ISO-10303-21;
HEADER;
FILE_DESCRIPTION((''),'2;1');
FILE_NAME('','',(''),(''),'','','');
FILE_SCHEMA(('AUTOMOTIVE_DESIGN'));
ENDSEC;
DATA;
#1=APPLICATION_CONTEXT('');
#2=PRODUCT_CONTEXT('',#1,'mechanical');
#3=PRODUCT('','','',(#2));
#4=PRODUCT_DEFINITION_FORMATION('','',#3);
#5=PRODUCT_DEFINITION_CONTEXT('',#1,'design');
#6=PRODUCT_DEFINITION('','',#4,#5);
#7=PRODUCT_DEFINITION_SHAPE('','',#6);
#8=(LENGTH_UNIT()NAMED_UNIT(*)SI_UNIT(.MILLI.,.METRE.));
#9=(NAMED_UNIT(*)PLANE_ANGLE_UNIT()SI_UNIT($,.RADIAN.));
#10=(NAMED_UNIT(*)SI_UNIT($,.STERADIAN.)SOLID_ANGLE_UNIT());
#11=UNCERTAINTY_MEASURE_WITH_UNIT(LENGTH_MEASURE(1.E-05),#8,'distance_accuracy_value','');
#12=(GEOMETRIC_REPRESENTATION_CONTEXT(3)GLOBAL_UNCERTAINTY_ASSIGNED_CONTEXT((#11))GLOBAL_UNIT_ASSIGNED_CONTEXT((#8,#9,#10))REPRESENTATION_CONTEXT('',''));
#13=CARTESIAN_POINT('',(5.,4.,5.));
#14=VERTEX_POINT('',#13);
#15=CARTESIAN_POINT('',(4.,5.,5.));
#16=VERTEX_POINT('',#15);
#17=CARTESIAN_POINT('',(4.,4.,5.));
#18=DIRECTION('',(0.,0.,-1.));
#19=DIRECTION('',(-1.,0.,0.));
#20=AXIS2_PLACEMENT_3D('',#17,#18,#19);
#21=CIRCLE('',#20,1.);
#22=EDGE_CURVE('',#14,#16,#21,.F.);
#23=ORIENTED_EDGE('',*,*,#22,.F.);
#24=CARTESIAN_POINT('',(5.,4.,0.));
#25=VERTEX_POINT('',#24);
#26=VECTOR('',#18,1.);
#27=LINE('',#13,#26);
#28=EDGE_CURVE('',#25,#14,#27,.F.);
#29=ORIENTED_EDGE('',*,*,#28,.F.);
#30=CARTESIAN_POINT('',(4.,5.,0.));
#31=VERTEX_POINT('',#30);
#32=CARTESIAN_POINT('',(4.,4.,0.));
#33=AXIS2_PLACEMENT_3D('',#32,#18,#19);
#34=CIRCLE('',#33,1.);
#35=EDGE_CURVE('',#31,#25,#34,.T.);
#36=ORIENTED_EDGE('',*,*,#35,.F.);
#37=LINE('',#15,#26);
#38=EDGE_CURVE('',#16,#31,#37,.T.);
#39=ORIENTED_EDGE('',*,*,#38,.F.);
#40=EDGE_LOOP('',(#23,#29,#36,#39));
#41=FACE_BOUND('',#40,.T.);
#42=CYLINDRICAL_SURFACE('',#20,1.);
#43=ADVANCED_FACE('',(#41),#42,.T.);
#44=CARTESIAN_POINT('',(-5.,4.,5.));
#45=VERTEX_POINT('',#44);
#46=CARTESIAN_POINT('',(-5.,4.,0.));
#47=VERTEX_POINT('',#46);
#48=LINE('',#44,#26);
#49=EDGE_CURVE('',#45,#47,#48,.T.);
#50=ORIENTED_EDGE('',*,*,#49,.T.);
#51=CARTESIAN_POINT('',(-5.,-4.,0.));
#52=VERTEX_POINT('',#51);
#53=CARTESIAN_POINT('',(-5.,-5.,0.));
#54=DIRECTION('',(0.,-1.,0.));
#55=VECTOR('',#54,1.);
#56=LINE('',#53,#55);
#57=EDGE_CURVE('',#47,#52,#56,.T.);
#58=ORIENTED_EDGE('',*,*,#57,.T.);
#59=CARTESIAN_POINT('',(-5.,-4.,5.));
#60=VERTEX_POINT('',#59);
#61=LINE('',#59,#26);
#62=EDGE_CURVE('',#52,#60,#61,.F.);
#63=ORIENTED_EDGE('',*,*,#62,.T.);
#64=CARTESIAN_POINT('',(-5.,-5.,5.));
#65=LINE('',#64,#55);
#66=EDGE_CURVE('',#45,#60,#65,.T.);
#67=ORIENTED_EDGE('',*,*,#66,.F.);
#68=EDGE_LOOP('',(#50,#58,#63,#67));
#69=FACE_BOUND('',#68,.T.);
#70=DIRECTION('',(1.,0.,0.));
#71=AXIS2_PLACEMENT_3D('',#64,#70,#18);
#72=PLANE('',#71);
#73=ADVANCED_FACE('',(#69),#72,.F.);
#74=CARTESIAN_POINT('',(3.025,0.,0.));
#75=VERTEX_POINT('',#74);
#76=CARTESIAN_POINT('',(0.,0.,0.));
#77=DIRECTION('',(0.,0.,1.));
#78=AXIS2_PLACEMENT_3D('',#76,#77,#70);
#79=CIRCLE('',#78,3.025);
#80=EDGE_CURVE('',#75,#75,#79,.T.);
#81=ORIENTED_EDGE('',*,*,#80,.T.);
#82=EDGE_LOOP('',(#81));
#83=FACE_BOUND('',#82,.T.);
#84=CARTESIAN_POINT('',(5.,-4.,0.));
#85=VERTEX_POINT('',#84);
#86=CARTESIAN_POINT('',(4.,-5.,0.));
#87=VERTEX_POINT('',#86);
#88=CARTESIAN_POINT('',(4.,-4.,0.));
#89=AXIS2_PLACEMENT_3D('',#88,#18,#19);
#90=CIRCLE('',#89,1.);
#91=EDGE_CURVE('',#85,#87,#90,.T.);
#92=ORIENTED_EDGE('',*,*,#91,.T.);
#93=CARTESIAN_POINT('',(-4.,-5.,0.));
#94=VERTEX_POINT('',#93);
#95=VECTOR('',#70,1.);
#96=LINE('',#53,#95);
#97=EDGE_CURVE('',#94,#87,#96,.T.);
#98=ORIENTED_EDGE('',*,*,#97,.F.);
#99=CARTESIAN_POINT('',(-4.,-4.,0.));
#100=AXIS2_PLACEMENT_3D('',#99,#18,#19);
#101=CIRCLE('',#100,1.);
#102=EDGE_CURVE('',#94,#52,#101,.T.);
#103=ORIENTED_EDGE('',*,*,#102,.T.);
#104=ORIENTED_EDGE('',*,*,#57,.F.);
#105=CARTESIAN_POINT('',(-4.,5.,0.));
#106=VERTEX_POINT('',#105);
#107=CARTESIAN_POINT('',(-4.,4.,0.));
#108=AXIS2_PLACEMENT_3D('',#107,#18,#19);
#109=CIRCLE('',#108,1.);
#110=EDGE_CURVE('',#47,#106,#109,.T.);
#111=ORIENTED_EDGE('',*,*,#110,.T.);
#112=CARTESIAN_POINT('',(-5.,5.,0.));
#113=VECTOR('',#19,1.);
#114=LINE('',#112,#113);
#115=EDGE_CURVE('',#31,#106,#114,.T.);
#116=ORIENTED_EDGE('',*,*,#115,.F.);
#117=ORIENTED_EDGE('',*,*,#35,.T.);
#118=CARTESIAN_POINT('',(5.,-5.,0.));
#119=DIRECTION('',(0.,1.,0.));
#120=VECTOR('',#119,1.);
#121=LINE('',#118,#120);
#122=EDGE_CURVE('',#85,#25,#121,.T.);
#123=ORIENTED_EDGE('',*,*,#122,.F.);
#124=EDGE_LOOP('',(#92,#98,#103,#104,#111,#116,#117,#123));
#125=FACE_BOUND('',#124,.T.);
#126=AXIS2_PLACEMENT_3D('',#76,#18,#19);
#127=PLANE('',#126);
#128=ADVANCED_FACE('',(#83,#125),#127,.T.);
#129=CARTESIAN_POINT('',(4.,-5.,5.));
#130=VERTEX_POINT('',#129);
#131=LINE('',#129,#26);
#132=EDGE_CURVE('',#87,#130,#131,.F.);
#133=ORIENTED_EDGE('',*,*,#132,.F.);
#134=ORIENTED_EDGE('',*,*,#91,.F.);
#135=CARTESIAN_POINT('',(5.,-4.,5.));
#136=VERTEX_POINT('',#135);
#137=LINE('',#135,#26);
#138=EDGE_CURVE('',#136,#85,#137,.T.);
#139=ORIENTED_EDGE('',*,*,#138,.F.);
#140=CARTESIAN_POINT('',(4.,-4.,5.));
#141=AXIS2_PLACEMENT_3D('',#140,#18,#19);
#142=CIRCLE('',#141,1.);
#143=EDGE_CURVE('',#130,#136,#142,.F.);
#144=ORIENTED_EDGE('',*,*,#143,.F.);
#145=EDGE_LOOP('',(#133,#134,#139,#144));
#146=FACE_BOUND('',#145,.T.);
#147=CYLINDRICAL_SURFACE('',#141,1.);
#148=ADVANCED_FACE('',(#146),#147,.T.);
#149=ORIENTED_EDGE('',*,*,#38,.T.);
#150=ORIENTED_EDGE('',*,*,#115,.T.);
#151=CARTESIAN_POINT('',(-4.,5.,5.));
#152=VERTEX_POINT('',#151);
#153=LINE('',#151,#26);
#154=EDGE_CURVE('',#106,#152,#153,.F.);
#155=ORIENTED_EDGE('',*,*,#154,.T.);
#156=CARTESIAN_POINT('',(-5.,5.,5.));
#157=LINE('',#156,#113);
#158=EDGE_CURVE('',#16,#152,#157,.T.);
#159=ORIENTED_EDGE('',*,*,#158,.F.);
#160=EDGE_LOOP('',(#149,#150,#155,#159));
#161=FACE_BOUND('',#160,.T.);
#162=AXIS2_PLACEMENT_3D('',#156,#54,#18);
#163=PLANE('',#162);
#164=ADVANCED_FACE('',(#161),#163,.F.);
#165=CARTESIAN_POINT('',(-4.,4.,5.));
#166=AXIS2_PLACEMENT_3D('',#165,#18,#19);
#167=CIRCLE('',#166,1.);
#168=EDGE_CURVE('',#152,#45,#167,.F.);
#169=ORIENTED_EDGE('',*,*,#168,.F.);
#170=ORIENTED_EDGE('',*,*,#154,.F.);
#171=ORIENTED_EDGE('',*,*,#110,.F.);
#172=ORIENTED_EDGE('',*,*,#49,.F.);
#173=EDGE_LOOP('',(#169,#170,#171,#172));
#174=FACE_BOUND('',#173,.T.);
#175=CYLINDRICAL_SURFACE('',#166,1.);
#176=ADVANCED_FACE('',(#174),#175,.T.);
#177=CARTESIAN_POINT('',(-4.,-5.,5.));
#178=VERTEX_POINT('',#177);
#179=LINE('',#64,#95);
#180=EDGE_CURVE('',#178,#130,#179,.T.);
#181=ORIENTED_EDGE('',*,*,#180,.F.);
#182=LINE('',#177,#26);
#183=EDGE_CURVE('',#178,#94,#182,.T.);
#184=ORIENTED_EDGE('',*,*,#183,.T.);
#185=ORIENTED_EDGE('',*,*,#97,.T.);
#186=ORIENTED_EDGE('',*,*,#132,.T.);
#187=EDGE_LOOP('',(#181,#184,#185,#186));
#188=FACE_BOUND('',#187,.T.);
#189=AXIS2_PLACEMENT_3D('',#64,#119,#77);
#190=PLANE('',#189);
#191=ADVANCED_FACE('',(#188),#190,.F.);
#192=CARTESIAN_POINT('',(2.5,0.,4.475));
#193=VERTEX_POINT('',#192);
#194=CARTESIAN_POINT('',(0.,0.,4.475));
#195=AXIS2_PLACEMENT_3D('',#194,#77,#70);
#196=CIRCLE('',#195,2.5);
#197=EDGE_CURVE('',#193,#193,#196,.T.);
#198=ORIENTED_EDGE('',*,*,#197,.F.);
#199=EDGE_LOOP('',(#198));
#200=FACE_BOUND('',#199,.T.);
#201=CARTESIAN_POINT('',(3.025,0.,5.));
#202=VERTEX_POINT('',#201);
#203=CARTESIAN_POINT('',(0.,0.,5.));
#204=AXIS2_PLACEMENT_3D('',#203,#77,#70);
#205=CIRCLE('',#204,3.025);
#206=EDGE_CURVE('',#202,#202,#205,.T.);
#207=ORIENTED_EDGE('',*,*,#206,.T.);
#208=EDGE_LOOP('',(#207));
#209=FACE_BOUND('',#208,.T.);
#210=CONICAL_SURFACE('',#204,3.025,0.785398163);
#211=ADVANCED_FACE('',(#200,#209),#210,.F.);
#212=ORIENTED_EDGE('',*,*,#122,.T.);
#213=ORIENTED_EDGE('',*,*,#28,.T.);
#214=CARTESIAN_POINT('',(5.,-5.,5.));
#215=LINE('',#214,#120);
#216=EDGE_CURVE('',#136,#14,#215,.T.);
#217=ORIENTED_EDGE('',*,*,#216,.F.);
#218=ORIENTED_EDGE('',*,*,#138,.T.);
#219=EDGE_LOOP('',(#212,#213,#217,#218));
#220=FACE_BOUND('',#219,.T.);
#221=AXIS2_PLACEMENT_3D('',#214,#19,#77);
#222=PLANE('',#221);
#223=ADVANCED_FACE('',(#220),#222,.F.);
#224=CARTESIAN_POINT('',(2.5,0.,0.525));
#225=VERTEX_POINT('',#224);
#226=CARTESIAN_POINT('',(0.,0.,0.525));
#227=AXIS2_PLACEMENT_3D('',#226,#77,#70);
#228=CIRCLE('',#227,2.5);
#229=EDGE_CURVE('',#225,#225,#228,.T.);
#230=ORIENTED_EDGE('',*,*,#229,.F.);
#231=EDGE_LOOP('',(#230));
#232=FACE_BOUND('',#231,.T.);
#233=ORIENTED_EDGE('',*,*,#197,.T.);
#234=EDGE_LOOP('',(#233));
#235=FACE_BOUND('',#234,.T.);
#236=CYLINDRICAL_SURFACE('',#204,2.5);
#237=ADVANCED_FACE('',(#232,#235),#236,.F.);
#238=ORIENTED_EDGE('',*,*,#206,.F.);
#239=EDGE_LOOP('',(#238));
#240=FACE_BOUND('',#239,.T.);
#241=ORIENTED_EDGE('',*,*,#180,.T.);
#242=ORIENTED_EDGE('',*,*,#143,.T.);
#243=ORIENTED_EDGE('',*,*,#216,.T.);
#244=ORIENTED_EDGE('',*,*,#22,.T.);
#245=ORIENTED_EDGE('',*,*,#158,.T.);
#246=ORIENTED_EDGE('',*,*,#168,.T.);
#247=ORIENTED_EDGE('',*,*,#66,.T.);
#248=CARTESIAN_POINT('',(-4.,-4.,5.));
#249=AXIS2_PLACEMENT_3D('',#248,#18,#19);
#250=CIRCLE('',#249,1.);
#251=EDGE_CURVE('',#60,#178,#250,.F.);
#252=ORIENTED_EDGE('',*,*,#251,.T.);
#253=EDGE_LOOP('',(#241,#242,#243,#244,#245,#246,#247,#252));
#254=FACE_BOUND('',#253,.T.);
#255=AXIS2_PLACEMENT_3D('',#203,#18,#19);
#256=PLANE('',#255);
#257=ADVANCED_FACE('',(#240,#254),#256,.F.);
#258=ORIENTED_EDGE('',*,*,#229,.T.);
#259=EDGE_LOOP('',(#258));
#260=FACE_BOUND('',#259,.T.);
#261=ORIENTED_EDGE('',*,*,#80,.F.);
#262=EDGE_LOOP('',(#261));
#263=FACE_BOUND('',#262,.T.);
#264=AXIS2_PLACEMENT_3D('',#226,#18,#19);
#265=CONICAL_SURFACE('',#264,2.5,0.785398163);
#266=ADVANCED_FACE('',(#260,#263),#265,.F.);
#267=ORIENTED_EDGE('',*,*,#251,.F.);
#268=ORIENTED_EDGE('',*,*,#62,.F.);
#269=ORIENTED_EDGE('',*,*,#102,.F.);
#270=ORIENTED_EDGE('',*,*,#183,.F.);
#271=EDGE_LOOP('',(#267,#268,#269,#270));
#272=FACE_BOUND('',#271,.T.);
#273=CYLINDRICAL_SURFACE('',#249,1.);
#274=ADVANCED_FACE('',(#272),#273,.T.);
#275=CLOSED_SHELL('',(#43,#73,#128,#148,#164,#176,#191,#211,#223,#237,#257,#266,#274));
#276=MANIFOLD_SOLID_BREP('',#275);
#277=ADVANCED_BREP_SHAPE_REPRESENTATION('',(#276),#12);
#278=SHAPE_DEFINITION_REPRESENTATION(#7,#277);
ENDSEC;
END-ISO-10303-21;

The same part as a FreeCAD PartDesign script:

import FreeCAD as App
import Part
import Sketcher
from FreeCAD import Vector
Q = App.Units.Quantity


def edges_at(feature, points):
    """Names of the edges that pass closest to the given points."""
    edges = feature.Shape.Edges
    near = lambda p: min(range(len(edges)), key=lambda i: edges[i].distToShape(Part.Vertex(*p))[0])
    return sorted({f"Edge{near(p) + 1}" for p in points})


def add_polygon(sketch, points):
    """Adds a closed chain of lines whose ends are joined by coincident constraints."""
    first, n = sketch.GeometryCount, len(points)
    for a, b in zip(points, points[1:] + points[:1]):
        sketch.addGeometry(Part.LineSegment(App.Vector(*a, 0), App.Vector(*b, 0)), False)
    for i in range(n):
        sketch.addConstraint(Sketcher.Constraint("Coincident", first + i, 2, first + (i + 1) % n, 1))

doc = App.newDocument("Part")
params = doc.addObject("Spreadsheet::Sheet", "Params")
for row, (alias, value) in enumerate([
    ("sketch1_width", "10 mm"),
    ("pad1_length", "5 mm"),
    ("sketch2_height", "5 mm"),
    ("sketch2_height2", "3.95 mm"),
    ("groove_angle", "360 deg"),
    ("fillet_radius", "1 mm"),
], start=1):
    params.set(f"A{row}", alias)
    params.set(f"B{row}", "=" + value)
    params.setAlias(f"B{row}", alias)

body = doc.addObject("PartDesign::Body", "Body")

sketch1 = doc.addObject("Sketcher::SketchObject", "Sketch")
body.addObject(sketch1)
sketch1.AttachmentSupport = (doc.XY_Plane, [""])
sketch1.MapMode = "FlatFace"
add_polygon(sketch1, [(-5, 5), (-5, -5), (5, -5), (5, 5)])
sketch1.addConstraint([
    Sketcher.Constraint("Vertical", 0),
    Sketcher.Constraint("Horizontal", 1),
    Sketcher.Constraint("Vertical", 2),
    Sketcher.Constraint("Horizontal", 3),
    Sketcher.Constraint("Symmetric", 0, 2, 2, 2, -1, 1),
    Sketcher.Constraint("Equal", 3, 0),
    Sketcher.Constraint("DistanceX", 1, 1, 1, 2, Q("10 mm")),
])
sketch1.setExpression("Constraints[10]", "Params.sketch1_width")
pad1 = doc.addObject("PartDesign::Pad", "Pad")
body.addObject(pad1)
pad1.Profile = sketch1
pad1.setExpression("Length", "Params.pad1_length")

sketch2 = doc.addObject("Sketcher::SketchObject", "Sketch001")
body.addObject(sketch2)
sketch2.AttachmentSupport = (doc.YZ_Plane, [""])
sketch2.MapMode = "FlatFace"
add_polygon(sketch2, [(0, 0), (0, 5), (-3, 5), (-2.5, 4.5), (-2.5, 0.5), (-3, 0)])
sketch2.addConstraint([
    Sketcher.Constraint("Vertical", 0),
    Sketcher.Constraint("Horizontal", 1),
    Sketcher.Constraint("Vertical", 3),
    Sketcher.Constraint("Horizontal", 5),
    Sketcher.Constraint("Coincident", 5, 2, -1, 1),
    Sketcher.Constraint("Perpendicular", 2, 4),
    Sketcher.Constraint("Vertical", 1, 2, 4, 2),
    Sketcher.Constraint("Equal", 2, 4),
    Sketcher.Constraint("DistanceY", 0, 1, 0, 2, Q("5 mm")),
    Sketcher.Constraint("DistanceY", 3, 2, 3, 1, Q("3.95 mm")),
    Sketcher.Constraint("DistanceX", 2, 2, -1, 1, Q("2.5 mm")),
])
sketch2.setExpression("Constraints[14]", "Params.sketch2_height")
sketch2.setExpression("Constraints[15]", "Params.sketch2_height2")
groove = doc.addObject("PartDesign::Groove", "Groove")
body.addObject(groove)
groove.Profile = sketch2
groove.ReferenceAxis = (sketch2, ["V_Axis"])
groove.setExpression("Angle", "Params.groove_angle")
doc.recompute()

fillet = doc.addObject("PartDesign::Fillet", "Fillet")
body.addObject(fillet)
fillet.Base = (groove, edges_at(groove, [
    (5, -5, 2.5),
    (-5, -5, 2.5),
    (-5, 5, 2.5),
    (5, 5, 2.5),
]))
fillet.setExpression("Radius", "Params.fillet_radius")

doc.recompute()
